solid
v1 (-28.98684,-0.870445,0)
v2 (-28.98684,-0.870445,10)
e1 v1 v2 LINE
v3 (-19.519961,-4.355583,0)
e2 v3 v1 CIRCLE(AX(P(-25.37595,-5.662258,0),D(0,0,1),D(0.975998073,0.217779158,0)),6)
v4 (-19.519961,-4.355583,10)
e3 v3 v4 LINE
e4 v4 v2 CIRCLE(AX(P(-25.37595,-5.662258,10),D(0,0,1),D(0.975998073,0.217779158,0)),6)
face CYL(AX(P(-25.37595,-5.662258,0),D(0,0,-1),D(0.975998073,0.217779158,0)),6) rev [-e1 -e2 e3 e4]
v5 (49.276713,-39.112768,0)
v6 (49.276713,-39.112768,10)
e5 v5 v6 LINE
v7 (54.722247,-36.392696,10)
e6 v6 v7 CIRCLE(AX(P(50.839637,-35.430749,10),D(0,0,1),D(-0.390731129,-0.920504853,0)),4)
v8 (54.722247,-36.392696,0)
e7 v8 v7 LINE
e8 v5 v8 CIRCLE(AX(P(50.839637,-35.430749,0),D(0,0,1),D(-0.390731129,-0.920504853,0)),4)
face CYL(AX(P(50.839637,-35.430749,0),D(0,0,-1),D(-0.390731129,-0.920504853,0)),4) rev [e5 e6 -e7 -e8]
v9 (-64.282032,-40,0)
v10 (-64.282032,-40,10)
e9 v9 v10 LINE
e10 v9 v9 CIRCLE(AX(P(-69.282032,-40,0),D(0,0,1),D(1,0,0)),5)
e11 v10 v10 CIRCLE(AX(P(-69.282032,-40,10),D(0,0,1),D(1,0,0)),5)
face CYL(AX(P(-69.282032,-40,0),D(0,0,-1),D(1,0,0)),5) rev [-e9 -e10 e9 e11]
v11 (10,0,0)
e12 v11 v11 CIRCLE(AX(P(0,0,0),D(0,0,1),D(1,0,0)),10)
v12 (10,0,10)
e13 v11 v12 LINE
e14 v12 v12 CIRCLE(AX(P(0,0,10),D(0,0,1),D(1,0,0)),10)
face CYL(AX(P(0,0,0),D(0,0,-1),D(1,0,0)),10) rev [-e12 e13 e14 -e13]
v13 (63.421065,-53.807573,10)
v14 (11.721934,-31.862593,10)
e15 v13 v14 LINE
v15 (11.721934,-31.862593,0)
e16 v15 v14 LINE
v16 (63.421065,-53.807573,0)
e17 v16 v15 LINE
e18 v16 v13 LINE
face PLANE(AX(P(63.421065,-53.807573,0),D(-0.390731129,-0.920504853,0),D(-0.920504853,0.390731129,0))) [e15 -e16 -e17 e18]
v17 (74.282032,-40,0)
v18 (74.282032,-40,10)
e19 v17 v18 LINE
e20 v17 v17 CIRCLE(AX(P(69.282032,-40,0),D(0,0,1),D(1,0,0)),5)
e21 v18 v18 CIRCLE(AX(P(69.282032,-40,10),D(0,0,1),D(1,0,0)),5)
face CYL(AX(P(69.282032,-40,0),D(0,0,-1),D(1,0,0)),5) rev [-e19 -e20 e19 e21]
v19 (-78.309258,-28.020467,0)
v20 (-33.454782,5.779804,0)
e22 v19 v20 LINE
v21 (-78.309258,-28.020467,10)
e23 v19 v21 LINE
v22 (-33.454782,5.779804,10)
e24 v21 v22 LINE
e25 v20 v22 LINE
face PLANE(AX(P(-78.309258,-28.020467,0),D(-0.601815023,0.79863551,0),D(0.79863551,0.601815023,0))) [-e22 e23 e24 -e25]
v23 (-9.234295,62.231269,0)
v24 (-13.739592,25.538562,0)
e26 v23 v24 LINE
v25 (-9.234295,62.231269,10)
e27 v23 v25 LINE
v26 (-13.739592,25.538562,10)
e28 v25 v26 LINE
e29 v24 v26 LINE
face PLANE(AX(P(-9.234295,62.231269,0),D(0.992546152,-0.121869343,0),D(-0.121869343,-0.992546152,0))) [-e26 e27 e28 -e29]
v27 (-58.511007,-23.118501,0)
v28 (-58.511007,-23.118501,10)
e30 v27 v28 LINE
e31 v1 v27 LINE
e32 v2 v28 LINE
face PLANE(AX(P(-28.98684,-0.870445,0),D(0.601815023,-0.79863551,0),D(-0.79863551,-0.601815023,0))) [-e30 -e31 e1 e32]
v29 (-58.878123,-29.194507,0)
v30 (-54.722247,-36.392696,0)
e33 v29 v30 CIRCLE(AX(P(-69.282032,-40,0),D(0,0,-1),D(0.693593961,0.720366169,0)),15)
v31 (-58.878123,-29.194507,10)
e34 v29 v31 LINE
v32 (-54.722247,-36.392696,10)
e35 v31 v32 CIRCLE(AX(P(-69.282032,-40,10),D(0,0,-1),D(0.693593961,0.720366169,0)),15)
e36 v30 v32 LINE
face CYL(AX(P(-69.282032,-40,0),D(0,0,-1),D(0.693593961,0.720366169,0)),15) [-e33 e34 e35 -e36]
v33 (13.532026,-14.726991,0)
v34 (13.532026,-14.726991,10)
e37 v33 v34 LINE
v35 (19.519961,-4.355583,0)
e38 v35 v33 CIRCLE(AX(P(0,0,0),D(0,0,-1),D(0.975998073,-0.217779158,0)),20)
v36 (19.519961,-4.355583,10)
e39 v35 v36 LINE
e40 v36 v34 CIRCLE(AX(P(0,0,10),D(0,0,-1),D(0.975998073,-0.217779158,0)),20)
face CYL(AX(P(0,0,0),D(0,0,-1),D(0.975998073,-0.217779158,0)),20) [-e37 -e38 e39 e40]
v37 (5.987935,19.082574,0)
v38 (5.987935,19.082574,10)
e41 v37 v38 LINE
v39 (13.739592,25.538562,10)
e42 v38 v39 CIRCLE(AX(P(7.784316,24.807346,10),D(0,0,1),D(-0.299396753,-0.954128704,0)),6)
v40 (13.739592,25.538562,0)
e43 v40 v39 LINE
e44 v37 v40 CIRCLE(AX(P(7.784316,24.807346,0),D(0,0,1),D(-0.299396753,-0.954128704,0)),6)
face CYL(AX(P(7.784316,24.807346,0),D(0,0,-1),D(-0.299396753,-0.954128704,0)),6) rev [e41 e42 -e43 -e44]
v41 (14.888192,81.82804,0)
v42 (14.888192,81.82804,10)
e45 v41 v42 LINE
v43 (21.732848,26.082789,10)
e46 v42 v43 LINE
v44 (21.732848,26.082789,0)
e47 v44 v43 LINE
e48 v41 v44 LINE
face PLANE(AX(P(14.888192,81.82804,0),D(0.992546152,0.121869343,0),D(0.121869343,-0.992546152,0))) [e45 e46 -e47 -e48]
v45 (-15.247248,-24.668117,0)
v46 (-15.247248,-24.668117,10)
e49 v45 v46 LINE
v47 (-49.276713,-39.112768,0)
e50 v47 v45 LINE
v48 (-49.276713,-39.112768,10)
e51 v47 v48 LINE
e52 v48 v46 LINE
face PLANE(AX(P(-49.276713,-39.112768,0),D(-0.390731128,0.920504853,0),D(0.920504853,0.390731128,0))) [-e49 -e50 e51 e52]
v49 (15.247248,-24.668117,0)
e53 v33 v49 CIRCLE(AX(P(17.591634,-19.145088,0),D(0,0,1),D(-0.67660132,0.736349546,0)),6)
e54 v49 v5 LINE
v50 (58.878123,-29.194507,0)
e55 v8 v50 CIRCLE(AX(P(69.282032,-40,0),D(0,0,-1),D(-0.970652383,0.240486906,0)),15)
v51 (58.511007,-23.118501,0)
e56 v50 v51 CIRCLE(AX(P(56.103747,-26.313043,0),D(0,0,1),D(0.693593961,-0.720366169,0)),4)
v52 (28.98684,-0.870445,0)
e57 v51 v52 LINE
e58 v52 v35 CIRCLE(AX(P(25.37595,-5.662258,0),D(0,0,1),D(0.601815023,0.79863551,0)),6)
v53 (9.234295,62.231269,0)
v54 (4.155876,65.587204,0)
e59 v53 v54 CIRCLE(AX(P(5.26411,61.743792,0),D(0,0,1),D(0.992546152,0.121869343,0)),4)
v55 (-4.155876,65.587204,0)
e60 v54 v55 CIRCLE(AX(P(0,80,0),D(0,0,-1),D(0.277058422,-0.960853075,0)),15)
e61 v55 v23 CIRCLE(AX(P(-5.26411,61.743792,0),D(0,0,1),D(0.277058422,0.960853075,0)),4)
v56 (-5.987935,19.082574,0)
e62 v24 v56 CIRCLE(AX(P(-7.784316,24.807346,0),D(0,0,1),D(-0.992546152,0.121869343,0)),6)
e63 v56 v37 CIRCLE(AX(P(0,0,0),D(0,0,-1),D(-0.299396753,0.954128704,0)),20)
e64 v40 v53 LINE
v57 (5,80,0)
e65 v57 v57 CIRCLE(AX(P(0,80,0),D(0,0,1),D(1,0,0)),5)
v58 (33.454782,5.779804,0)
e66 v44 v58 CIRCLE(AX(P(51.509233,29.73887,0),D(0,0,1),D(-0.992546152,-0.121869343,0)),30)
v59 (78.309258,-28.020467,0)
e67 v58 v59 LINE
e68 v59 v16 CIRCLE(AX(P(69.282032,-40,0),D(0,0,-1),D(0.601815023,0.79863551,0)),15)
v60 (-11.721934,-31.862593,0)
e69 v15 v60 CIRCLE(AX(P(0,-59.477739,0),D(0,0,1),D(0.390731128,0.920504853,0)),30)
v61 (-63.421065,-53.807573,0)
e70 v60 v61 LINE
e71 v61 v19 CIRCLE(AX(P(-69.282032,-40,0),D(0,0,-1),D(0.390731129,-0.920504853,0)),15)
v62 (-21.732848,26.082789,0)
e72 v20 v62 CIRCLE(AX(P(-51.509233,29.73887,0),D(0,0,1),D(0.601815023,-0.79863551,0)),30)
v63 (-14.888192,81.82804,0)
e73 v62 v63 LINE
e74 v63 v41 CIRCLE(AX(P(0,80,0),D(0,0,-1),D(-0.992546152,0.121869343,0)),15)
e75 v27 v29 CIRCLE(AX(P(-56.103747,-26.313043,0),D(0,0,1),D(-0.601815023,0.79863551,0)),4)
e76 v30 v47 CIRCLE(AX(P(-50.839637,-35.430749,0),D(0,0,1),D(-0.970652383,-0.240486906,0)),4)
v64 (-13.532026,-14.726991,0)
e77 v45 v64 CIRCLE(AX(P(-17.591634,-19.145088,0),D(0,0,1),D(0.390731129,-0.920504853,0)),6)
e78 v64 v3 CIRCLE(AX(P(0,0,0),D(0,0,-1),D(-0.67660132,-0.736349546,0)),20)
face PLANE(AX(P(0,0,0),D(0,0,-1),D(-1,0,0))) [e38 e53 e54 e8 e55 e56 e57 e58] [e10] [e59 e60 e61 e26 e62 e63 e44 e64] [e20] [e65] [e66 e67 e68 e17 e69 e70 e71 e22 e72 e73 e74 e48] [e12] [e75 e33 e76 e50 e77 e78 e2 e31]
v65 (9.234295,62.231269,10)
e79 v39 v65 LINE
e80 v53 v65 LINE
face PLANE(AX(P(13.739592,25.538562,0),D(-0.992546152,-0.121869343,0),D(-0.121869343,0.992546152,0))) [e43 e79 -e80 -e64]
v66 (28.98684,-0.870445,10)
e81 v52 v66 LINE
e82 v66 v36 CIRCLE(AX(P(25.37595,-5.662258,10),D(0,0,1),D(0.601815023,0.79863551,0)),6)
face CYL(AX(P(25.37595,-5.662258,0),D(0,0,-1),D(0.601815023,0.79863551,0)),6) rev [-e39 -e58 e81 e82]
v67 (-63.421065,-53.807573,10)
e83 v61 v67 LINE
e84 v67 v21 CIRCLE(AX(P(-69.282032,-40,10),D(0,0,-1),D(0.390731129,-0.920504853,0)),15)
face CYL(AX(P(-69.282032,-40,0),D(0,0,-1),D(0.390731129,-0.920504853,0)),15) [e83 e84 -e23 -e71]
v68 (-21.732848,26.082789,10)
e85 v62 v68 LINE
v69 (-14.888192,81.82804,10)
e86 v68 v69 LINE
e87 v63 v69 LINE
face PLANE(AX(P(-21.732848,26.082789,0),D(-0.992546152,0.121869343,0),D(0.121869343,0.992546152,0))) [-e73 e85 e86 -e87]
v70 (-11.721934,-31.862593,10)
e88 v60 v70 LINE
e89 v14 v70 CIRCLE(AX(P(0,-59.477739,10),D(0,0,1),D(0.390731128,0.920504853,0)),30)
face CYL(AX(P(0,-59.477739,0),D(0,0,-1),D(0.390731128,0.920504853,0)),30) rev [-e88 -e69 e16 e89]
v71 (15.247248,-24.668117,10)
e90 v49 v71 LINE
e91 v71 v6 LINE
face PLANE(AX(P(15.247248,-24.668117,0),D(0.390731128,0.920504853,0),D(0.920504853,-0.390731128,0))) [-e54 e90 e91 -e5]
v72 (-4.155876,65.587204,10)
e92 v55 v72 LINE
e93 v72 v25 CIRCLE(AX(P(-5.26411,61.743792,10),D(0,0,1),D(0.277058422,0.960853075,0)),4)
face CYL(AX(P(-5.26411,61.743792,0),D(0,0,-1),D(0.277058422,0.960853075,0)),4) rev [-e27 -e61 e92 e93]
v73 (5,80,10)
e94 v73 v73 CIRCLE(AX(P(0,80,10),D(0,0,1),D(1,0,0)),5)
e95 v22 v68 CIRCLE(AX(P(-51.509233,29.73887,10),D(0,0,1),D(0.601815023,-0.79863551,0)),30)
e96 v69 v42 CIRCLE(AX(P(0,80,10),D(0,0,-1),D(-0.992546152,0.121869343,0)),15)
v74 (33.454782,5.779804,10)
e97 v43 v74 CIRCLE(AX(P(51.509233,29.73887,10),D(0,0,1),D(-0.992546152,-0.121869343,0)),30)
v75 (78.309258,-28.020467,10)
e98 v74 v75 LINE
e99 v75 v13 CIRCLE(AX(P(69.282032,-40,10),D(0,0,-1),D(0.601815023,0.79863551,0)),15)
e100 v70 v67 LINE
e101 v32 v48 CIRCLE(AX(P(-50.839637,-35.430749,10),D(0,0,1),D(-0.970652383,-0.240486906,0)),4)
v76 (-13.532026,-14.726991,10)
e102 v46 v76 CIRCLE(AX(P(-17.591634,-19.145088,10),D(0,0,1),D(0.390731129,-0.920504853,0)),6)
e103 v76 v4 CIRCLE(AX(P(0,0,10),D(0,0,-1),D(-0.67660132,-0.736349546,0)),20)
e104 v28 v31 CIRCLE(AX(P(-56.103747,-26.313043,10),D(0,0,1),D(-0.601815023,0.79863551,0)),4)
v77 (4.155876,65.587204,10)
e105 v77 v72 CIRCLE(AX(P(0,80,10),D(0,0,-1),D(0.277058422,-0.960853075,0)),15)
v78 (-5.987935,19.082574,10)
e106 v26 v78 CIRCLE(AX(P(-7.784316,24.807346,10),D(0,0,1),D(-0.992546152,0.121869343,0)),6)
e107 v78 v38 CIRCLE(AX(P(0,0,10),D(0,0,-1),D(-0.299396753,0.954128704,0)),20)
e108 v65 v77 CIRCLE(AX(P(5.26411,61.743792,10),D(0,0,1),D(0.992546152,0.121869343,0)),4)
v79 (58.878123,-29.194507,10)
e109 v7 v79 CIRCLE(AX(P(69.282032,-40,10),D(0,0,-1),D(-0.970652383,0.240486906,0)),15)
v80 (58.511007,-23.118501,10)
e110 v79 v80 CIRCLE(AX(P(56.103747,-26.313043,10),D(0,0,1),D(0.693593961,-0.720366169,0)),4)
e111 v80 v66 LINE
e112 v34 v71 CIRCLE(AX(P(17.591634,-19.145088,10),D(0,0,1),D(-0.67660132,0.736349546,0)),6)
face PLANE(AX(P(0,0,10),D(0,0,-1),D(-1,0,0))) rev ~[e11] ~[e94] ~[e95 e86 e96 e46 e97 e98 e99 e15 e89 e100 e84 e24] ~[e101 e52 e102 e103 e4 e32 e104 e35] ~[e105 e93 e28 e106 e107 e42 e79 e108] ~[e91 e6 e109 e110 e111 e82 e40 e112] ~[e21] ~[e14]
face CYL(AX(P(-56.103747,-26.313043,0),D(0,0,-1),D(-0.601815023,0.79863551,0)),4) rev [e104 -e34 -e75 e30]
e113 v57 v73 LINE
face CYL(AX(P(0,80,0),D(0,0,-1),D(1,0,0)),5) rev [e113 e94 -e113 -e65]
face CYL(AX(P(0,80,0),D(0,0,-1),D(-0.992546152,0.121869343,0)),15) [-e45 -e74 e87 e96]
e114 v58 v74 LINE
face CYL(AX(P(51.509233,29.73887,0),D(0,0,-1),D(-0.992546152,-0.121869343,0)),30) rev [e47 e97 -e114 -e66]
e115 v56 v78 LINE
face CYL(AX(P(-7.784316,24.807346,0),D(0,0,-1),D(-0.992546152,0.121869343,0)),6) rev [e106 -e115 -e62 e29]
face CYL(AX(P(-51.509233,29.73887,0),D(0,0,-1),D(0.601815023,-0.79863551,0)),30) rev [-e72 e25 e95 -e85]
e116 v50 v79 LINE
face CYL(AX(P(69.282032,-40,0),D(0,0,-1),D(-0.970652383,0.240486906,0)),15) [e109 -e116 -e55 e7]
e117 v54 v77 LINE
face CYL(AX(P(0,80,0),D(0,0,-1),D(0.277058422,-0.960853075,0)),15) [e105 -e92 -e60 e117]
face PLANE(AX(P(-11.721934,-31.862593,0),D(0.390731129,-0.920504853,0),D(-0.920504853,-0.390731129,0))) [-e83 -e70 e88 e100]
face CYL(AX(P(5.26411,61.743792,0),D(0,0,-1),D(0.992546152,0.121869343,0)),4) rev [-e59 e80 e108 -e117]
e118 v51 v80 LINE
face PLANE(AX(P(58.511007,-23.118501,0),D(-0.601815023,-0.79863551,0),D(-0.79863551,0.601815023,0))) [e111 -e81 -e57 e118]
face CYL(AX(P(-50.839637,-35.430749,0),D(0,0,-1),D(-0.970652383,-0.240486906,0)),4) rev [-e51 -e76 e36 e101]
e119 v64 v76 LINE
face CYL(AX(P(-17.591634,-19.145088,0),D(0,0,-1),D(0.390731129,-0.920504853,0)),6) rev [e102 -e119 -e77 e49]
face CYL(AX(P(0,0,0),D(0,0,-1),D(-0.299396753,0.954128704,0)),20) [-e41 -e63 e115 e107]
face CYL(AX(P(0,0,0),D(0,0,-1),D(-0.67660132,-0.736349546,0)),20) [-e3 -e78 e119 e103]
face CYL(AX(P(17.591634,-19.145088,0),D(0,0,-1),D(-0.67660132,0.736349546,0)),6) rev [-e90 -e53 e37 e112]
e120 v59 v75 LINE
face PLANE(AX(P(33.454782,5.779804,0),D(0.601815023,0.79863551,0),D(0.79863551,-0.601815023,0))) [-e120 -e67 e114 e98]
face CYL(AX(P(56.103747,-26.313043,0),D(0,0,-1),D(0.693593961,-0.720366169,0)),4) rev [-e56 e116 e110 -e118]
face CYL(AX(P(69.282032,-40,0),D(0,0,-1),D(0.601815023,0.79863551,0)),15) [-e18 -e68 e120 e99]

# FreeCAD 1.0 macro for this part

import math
import FreeCAD as App
import Part
import Sketcher
Q = App.Units.Quantity

doc = App.newDocument("Part")
body = doc.addObject("PartDesign::Body", "Body")

sketch1 = body.newObject("Sketcher::SketchObject", "Sketch")
sketch1.AttachmentSupport = (doc.getObject("XY_Plane"), [""])
sketch1.MapMode = "FlatFace"
sketch1.addGeometry([
    Part.ArcOfCircle(Part.Circle(App.Vector(-51.5, 29.7, 0), App.Vector(0, 0, 1), 30), math.radians(-53), math.radians(-7)),
    Part.LineSegment(App.Vector(-33.5, 5.8, 0), App.Vector(-78.3, -28, 0)),
    Part.ArcOfCircle(Part.Circle(App.Vector(-69.3, -40, 0), App.Vector(0, 0, 1), 15), math.radians(127), math.radians(293)),
    Part.LineSegment(App.Vector(-63.4, -53.8, 0), App.Vector(-11.7, -31.9, 0)),
    Part.ArcOfCircle(Part.Circle(App.Vector(0, -59.5, 0), App.Vector(0, 0, 1), 30), math.radians(67), math.radians(113)),
    Part.LineSegment(App.Vector(11.7, -31.9, 0), App.Vector(63.4, -53.8, 0)),
    Part.ArcOfCircle(Part.Circle(App.Vector(69.3, -40, 0), App.Vector(0, 0, 1), 15), math.radians(-113), math.radians(53)),
    Part.LineSegment(App.Vector(78.3, -28, 0), App.Vector(33.5, 5.8, 0)),
    Part.ArcOfCircle(Part.Circle(App.Vector(51.5, 29.7, 0), App.Vector(0, 0, 1), 30), math.radians(-173), math.radians(-127)),
    Part.LineSegment(App.Vector(21.7, 26.1, 0), App.Vector(14.9, 81.8, 0)),
    Part.ArcOfCircle(Part.Circle(App.Vector(0, 80, 0), App.Vector(0, 0, 1), 15), math.radians(7), math.radians(173)),
    Part.LineSegment(App.Vector(-14.9, 81.8, 0), App.Vector(-21.7, 26.1, 0)),
    Part.Circle(App.Vector(69.3, -40, 0), App.Vector(0, 0, 1), 5),
    Part.ArcOfCircle(Part.Circle(App.Vector(69.3, -40, 0), App.Vector(0, 0, 1), 15), math.radians(134), math.radians(166)),
    Part.ArcOfCircle(Part.Circle(App.Vector(50.8, -35.4, 0), App.Vector(0, 0, 1), 4), math.radians(-113), math.radians(-14)),
    Part.LineSegment(App.Vector(49.3, -39.1, 0), App.Vector(15.2, -24.7, 0)),
    Part.ArcOfCircle(Part.Circle(App.Vector(17.6, -19.1, 0), App.Vector(0, 0, 1), 6), math.radians(133), math.radians(247)),
    Part.ArcOfCircle(Part.Circle(App.Vector(0, 0, 0), App.Vector(0, 0, 1), 20), math.radians(-47), math.radians(-13)),
    Part.ArcOfCircle(Part.Circle(App.Vector(25.4, -5.7, 0), App.Vector(0, 0, 1), 6), math.radians(53), math.radians(167)),
    Part.LineSegment(App.Vector(29, -0.9, 0), App.Vector(58.5, -23.1, 0)),
    Part.ArcOfCircle(Part.Circle(App.Vector(56.1, -26.3, 0), App.Vector(0, 0, 1), 4), math.radians(-46), math.radians(53)),
    Part.ArcOfCircle(Part.Circle(App.Vector(-69.3, -40, 0), App.Vector(0, 0, 1), 15), math.radians(14), math.radians(46)),
    Part.ArcOfCircle(Part.Circle(App.Vector(-56.1, -26.3, 0), App.Vector(0, 0, 1), 4), math.radians(127), math.radians(226)),
    Part.LineSegment(App.Vector(-58.5, -23.1, 0), App.Vector(-29, -0.9, 0)),
    Part.ArcOfCircle(Part.Circle(App.Vector(-25.4, -5.7, 0), App.Vector(0, 0, 1), 6), math.radians(13), math.radians(127)),
    Part.ArcOfCircle(Part.Circle(App.Vector(0, 0, 0), App.Vector(0, 0, 1), 20), math.radians(-167), math.radians(-133)),
    Part.ArcOfCircle(Part.Circle(App.Vector(-17.6, -19.1, 0), App.Vector(0, 0, 1), 6), math.radians(-67), math.radians(47)),
    Part.LineSegment(App.Vector(-15.2, -24.7, 0), App.Vector(-49.3, -39.1, 0)),
    Part.ArcOfCircle(Part.Circle(App.Vector(-50.8, -35.4, 0), App.Vector(0, 0, 1), 4), math.radians(-166), math.radians(-67)),
    Part.Circle(App.Vector(-69.3, -40, 0), App.Vector(0, 0, 1), 5),
    Part.Circle(App.Vector(0, 0, 0), App.Vector(0, 0, 1), 10),
    Part.ArcOfCircle(Part.Circle(App.Vector(0, 80, 0), App.Vector(0, 0, 1), 15), math.radians(-106), math.radians(-74)),
    Part.ArcOfCircle(Part.Circle(App.Vector(5.3, 61.7, 0), App.Vector(0, 0, 1), 4), math.radians(7), math.radians(106)),
    Part.LineSegment(App.Vector(9.2, 62.2, 0), App.Vector(13.7, 25.5, 0)),
    Part.ArcOfCircle(Part.Circle(App.Vector(7.8, 24.8, 0), App.Vector(0, 0, 1), 6), math.radians(-107), math.radians(7)),
    Part.ArcOfCircle(Part.Circle(App.Vector(0, 0, 0), App.Vector(0, 0, 1), 20), math.radians(73), math.radians(107)),
    Part.ArcOfCircle(Part.Circle(App.Vector(-7.8, 24.8, 0), App.Vector(0, 0, 1), 6), math.radians(173), math.radians(287)),
    Part.LineSegment(App.Vector(-13.7, 25.5, 0), App.Vector(-9.2, 62.2, 0)),
    Part.ArcOfCircle(Part.Circle(App.Vector(-5.3, 61.7, 0), App.Vector(0, 0, 1), 4), math.radians(74), math.radians(173)),
    Part.Circle(App.Vector(0, 80, 0), App.Vector(0, 0, 1), 5),
], False)
sketch1.addConstraint([
    Sketcher.Constraint("Tangent", 0, 1, 1, 1),
    Sketcher.Constraint("Tangent", 1, 2, 2, 1),
    Sketcher.Constraint("Tangent", 2, 2, 3, 1),
    Sketcher.Constraint("Tangent", 3, 2, 4, 2),
    Sketcher.Constraint("Tangent", 4, 1, 5, 1),
    Sketcher.Constraint("Tangent", 5, 2, 6, 1),
    Sketcher.Constraint("Tangent", 6, 2, 7, 1),
    Sketcher.Constraint("Tangent", 7, 2, 8, 2),
    Sketcher.Constraint("Tangent", 8, 1, 9, 1),
    Sketcher.Constraint("Tangent", 9, 2, 10, 1),
    Sketcher.Constraint("Tangent", 10, 2, 11, 1),
    Sketcher.Constraint("Tangent", 11, 2, 0, 2),
    Sketcher.Constraint("Tangent", 13, 2, 14, 2),
    Sketcher.Constraint("Tangent", 14, 1, 15, 1),
    Sketcher.Constraint("Tangent", 15, 2, 16, 2),
    Sketcher.Constraint("Tangent", 16, 1, 17, 1),
    Sketcher.Constraint("Tangent", 17, 2, 18, 2),
    Sketcher.Constraint("Tangent", 18, 1, 19, 1),
    Sketcher.Constraint("Tangent", 19, 2, 20, 2),
    Sketcher.Constraint("Tangent", 20, 1, 13, 1),
    Sketcher.Constraint("Tangent", 21, 2, 22, 2),
    Sketcher.Constraint("Tangent", 22, 1, 23, 1),
    Sketcher.Constraint("Tangent", 23, 2, 24, 2),
    Sketcher.Constraint("Tangent", 24, 1, 25, 1),
    Sketcher.Constraint("Tangent", 25, 2, 26, 2),
    Sketcher.Constraint("Tangent", 26, 1, 27, 1),
    Sketcher.Constraint("Tangent", 27, 2, 28, 2),
    Sketcher.Constraint("Tangent", 28, 1, 21, 1),
    Sketcher.Constraint("Tangent", 31, 2, 32, 2),
    Sketcher.Constraint("Tangent", 32, 1, 33, 1),
    Sketcher.Constraint("Tangent", 33, 2, 34, 2),
    Sketcher.Constraint("Tangent", 34, 1, 35, 1),
    Sketcher.Constraint("Tangent", 35, 2, 36, 2),
    Sketcher.Constraint("Tangent", 36, 1, 37, 1),
    Sketcher.Constraint("Tangent", 37, 2, 38, 2),
    Sketcher.Constraint("Tangent", 38, 1, 31, 1),
    Sketcher.Constraint("Coincident", 17, 3, -1, 1),
    Sketcher.Constraint("Coincident", 25, 3, -1, 1),
    Sketcher.Constraint("Coincident", 30, 3, -1, 1),
    Sketcher.Constraint("Coincident", 35, 3, -1, 1),
    Sketcher.Constraint("Coincident", 12, 3, 6, 3),
    Sketcher.Constraint("Coincident", 13, 3, 6, 3),
    Sketcher.Constraint("Coincident", 21, 3, 2, 3),
    Sketcher.Constraint("Coincident", 29, 3, 2, 3),
    Sketcher.Constraint("Coincident", 31, 3, 10, 3),
    Sketcher.Constraint("Coincident", 39, 3, 10, 3),
    Sketcher.Constraint("Equal", 0, 4),
    Sketcher.Constraint("Equal", 2, 6),
    Sketcher.Constraint("Equal", 4, 8),
    Sketcher.Constraint("Equal", 6, 10),
    Sketcher.Constraint("Equal", 10, 13),
    Sketcher.Constraint("Equal", 16, 18),
    Sketcher.Constraint("Equal", 14, 20),
    Sketcher.Constraint("Equal", 13, 21),
    Sketcher.Constraint("Equal", 20, 22),
    Sketcher.Constraint("Equal", 18, 24),
    Sketcher.Constraint("Equal", 17, 25),
    Sketcher.Constraint("Equal", 24, 26),
    Sketcher.Constraint("Equal", 22, 28),
    Sketcher.Constraint("Equal", 12, 29),
    Sketcher.Constraint("Equal", 21, 31),
    Sketcher.Constraint("Equal", 28, 32),
    Sketcher.Constraint("Equal", 26, 34),
    Sketcher.Constraint("Equal", 25, 35),
    Sketcher.Constraint("Equal", 34, 36),
    Sketcher.Constraint("Equal", 32, 38),
    Sketcher.Constraint("Equal", 29, 39),
    Sketcher.Constraint("Symmetric", 2, 3, 6, 3, -2),
    Sketcher.Constraint("Symmetric", 0, 3, 8, 3, -2),
    Sketcher.Constraint("Symmetric", 32, 3, 38, 3, -2),
    Sketcher.Constraint("Symmetric", 19, 2, 22, 1, -2),
    Sketcher.Constraint("Symmetric", 15, 2, 26, 1, -2),
    Sketcher.Constraint("PointOnObject", 4, 3, -2),
    Sketcher.Constraint("Parallel", 5, 15),
    Sketcher.Constraint("Parallel", 7, 19),
    Sketcher.Constraint("Parallel", 9, 33),
    Sketcher.Constraint("Parallel", 11, 37),
    Sketcher.Constraint("Equal", 1, 3),
    Sketcher.Constraint("Equal", 7, 9),
    Sketcher.Constraint("Equal", 15, 19),
    Sketcher.Constraint("Equal", 27, 33),
    Sketcher.Constraint("Diameter", 12, 10.0),
    Sketcher.Constraint("Diameter", 30, 20.0),
    Sketcher.Constraint("Radius", 0, 30.0),
    Sketcher.Constraint("Radius", 2, 15.0),
    Sketcher.Constraint("Radius", 14, 4.0),
    Sketcher.Constraint("Radius", 16, 6.0),
    Sketcher.Constraint("Radius", 17, 20.0),
    Sketcher.Constraint("Angle", 1, Q("-143 deg")),
    Sketcher.Constraint("Angle", 3, Q("23 deg")),
    Sketcher.Constraint("DistanceY", 2, 3, -1, 1, 40.0),
    Sketcher.Constraint("DistanceY", -1, 1, 10, 3, 80.0),
    Sketcher.Constraint("DistanceY", 19, 2, -1, 1, 23.118501),
])
pad1 = body.newObject("PartDesign::Pad", "Pad")
pad1.Profile = sketch1
pad1.Length = 10

doc.recompute()
